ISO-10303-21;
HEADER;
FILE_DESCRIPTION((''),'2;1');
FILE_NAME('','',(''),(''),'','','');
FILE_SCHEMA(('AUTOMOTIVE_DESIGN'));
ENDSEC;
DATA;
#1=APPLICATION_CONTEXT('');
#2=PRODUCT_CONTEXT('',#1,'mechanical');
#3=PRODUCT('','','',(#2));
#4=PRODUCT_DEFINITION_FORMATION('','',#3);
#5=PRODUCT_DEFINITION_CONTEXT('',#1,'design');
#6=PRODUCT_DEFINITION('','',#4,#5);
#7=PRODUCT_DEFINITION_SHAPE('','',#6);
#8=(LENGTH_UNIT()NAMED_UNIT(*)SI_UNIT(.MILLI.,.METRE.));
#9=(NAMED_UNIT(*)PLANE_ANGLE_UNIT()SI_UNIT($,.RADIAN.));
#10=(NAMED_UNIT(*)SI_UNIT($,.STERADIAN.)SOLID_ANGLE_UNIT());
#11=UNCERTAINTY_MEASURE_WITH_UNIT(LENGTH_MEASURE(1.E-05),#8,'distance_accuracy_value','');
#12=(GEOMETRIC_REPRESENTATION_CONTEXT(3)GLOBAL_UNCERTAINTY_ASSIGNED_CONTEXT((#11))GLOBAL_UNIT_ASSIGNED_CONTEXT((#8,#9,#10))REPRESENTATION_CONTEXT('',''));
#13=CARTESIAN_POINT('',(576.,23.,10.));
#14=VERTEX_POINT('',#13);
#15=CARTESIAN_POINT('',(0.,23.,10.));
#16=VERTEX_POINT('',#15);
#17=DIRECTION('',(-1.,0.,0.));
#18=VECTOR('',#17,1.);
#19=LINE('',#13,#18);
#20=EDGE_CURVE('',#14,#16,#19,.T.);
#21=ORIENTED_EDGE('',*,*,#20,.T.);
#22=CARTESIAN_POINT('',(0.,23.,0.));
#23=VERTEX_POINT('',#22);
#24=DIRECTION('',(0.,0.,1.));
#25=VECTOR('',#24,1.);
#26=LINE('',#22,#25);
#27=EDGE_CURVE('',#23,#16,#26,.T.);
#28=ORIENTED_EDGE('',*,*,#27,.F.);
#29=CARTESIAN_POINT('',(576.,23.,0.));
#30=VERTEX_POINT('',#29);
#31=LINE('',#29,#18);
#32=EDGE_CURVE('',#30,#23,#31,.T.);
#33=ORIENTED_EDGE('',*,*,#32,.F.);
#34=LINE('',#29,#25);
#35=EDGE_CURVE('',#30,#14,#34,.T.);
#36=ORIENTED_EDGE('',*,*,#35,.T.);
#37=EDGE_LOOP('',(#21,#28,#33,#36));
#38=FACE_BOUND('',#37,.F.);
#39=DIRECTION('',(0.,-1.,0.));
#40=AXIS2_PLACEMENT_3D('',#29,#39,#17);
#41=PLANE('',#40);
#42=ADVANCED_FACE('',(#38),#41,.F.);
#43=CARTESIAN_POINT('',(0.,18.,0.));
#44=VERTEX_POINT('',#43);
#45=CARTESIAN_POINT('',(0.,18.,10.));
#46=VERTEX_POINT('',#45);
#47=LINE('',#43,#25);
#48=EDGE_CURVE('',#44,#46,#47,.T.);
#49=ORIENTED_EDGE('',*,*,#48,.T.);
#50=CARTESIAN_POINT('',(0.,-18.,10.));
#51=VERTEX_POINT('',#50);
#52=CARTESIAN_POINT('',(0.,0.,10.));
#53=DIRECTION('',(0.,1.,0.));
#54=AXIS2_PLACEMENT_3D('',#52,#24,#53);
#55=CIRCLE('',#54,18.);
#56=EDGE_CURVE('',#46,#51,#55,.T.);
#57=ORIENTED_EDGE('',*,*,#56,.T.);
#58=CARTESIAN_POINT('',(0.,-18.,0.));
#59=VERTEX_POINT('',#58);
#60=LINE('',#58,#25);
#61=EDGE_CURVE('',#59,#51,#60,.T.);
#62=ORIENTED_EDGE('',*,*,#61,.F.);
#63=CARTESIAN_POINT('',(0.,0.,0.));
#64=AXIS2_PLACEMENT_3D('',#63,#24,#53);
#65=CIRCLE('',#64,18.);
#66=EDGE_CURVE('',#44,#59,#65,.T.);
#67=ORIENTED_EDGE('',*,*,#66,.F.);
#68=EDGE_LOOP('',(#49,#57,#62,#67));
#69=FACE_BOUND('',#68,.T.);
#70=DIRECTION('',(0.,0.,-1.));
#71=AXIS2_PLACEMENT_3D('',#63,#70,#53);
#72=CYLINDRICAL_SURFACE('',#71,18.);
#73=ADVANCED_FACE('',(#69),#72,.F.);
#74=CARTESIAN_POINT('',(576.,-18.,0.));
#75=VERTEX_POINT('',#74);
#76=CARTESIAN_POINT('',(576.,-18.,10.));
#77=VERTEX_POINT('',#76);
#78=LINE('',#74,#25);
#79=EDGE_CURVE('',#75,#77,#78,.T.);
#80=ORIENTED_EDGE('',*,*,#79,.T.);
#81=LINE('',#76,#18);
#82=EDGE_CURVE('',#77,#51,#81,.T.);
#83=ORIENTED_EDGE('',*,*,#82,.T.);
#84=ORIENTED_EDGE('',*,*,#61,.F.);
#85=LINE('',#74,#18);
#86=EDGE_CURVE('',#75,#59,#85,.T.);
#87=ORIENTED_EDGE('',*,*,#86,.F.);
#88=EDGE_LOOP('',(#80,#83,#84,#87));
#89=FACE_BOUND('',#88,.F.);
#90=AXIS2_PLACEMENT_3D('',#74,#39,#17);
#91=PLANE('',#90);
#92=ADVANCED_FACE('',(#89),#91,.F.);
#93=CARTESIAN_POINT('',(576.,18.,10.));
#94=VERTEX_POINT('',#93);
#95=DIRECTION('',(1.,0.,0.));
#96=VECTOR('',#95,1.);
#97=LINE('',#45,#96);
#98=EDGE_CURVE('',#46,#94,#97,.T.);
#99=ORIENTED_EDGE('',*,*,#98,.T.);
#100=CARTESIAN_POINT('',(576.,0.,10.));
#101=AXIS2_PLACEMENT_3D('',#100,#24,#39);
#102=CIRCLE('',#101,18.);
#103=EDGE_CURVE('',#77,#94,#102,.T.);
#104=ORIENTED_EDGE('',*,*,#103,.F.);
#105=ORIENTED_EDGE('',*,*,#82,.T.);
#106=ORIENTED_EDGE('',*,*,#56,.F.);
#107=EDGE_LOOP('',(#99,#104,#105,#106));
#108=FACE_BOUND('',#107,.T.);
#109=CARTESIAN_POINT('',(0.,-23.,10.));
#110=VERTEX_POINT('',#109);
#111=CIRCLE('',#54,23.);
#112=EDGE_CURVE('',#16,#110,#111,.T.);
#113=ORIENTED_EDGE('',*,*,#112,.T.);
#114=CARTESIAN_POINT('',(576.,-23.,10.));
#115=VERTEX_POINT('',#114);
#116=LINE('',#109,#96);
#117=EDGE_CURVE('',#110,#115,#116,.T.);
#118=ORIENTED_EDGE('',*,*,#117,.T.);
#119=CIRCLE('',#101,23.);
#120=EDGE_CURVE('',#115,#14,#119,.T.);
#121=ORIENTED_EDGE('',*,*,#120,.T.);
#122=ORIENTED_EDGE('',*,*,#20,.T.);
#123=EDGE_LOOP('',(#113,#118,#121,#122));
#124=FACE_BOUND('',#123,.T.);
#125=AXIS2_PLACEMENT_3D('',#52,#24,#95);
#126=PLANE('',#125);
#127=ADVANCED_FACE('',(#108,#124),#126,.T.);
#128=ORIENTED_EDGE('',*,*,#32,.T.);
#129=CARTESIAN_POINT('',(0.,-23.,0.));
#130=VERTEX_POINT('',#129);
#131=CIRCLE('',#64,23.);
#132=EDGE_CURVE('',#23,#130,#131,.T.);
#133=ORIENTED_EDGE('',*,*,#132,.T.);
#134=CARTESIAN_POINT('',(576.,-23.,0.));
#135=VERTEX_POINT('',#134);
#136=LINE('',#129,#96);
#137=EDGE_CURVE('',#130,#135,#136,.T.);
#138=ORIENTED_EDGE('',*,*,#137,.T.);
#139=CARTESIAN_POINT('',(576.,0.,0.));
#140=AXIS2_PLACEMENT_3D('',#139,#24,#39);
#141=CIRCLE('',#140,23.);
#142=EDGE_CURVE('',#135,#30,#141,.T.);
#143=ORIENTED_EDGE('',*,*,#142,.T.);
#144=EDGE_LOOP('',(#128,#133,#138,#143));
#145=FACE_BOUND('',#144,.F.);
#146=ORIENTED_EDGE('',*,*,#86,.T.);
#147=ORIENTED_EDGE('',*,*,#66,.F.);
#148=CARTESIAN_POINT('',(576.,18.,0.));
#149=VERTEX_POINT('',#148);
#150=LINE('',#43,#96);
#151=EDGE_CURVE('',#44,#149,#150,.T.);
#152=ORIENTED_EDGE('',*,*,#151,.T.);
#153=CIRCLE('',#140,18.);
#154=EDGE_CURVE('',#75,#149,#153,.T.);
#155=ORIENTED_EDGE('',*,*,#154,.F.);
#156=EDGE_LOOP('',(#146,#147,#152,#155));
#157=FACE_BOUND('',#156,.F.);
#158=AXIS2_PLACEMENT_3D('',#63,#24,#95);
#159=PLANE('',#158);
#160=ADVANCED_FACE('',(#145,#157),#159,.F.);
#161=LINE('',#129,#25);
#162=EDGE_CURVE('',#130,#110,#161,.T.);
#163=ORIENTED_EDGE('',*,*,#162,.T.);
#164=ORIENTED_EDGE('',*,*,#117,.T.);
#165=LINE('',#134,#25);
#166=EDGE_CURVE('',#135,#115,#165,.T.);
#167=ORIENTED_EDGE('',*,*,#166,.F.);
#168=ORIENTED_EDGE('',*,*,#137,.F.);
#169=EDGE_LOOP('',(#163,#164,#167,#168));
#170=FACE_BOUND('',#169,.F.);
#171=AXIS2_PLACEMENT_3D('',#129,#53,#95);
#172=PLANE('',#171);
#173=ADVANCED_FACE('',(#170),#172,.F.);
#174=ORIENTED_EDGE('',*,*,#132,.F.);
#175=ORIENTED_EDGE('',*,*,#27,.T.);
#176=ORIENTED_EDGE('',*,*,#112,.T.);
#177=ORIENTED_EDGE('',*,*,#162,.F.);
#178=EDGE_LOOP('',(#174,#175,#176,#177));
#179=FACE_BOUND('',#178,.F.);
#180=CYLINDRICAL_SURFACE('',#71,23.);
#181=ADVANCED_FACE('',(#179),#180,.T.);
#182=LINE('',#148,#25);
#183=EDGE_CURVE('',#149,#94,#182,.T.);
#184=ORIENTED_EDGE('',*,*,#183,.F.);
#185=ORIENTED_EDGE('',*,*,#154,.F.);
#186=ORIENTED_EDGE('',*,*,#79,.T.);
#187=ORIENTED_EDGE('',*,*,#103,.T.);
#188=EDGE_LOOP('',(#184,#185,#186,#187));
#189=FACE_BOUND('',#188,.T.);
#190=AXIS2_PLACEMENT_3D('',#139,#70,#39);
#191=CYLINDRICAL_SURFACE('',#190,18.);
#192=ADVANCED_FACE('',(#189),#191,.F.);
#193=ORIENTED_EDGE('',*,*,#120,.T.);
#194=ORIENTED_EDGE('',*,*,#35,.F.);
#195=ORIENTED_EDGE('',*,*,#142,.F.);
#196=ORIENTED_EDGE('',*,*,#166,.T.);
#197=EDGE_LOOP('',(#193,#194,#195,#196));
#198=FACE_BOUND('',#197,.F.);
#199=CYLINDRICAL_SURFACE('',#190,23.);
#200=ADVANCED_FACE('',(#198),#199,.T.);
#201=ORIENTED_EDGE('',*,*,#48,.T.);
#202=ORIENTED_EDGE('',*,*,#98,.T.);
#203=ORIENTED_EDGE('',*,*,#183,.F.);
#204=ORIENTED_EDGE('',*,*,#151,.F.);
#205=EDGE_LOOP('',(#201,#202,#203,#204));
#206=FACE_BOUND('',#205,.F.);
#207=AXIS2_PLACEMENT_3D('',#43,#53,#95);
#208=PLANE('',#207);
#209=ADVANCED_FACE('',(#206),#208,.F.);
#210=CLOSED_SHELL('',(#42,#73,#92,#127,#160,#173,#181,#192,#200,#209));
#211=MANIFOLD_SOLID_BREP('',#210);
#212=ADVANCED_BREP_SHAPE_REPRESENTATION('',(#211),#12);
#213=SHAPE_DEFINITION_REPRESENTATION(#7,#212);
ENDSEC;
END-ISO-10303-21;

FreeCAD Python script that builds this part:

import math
import FreeCAD as App
import Part
import Sketcher
Q = App.Units.Quantity

doc = App.newDocument("Part")
body = doc.addObject("PartDesign::Body", "Body")

sketch1 = doc.addObject("Sketcher::SketchObject", "Sketch")
body.addObject(sketch1)
sketch1.AttachmentSupport = (doc.XY_Plane, [""])
sketch1.MapMode = "FlatFace"
sketch1.addGeometry([
    Part.ArcOfCircle(Part.Circle(App.Vector(576, 0, 0), App.Vector(0, 0, 1), 23), math.radians(-90), math.radians(90)),
    Part.LineSegment(App.Vector(576, 23, 0), App.Vector(0, 23, 0)),
    Part.ArcOfCircle(Part.Circle(App.Vector(0, 0, 0), App.Vector(0, 0, 1), 23), math.radians(90), math.radians(270)),
    Part.LineSegment(App.Vector(0, -23, 0), App.Vector(576, -23, 0)),
    Part.ArcOfCircle(Part.Circle(App.Vector(0, 0, 0), App.Vector(0, 0, 1), 18), math.radians(90), math.radians(270)),
    Part.LineSegment(App.Vector(0, 18, 0), App.Vector(576, 18, 0)),
    Part.ArcOfCircle(Part.Circle(App.Vector(576, 0, 0), App.Vector(0, 0, 1), 18), math.radians(-90), math.radians(90)),
    Part.LineSegment(App.Vector(576, -18, 0), App.Vector(0, -18, 0)),
], False)
sketch1.addConstraint([
    Sketcher.Constraint("Tangent", 0, 2, 1, 1),
    Sketcher.Constraint("Tangent", 1, 2, 2, 1),
    Sketcher.Constraint("Tangent", 2, 2, 3, 1),
    Sketcher.Constraint("Tangent", 3, 2, 0, 1),
    Sketcher.Constraint("Tangent", 4, 1, 5, 1),
    Sketcher.Constraint("Tangent", 5, 2, 6, 2),
    Sketcher.Constraint("Tangent", 6, 1, 7, 1),
    Sketcher.Constraint("Tangent", 7, 2, 4, 2),
    Sketcher.Constraint("Horizontal", 1),
    Sketcher.Constraint("Horizontal", 3),
    Sketcher.Constraint("Horizontal", 5),
    Sketcher.Constraint("Horizontal", 7),
    Sketcher.Constraint("Coincident", 2, 3, -1, 1),
    Sketcher.Constraint("Coincident", 4, 3, -1, 1),
    Sketcher.Constraint("Vertical", 6, 3, 0, 2),
    Sketcher.Constraint("Radius", 4, Q("18 mm")),
    Sketcher.Constraint("DistanceX", 1, 2, 1, 1, Q("576 mm")),
    Sketcher.Constraint("Radius", 0, Q("23 mm")),
])
pad1 = doc.addObject("PartDesign::Pad", "Pad")
body.addObject(pad1)
pad1.Profile = sketch1
pad1.Length = 10

doc.recompute()
